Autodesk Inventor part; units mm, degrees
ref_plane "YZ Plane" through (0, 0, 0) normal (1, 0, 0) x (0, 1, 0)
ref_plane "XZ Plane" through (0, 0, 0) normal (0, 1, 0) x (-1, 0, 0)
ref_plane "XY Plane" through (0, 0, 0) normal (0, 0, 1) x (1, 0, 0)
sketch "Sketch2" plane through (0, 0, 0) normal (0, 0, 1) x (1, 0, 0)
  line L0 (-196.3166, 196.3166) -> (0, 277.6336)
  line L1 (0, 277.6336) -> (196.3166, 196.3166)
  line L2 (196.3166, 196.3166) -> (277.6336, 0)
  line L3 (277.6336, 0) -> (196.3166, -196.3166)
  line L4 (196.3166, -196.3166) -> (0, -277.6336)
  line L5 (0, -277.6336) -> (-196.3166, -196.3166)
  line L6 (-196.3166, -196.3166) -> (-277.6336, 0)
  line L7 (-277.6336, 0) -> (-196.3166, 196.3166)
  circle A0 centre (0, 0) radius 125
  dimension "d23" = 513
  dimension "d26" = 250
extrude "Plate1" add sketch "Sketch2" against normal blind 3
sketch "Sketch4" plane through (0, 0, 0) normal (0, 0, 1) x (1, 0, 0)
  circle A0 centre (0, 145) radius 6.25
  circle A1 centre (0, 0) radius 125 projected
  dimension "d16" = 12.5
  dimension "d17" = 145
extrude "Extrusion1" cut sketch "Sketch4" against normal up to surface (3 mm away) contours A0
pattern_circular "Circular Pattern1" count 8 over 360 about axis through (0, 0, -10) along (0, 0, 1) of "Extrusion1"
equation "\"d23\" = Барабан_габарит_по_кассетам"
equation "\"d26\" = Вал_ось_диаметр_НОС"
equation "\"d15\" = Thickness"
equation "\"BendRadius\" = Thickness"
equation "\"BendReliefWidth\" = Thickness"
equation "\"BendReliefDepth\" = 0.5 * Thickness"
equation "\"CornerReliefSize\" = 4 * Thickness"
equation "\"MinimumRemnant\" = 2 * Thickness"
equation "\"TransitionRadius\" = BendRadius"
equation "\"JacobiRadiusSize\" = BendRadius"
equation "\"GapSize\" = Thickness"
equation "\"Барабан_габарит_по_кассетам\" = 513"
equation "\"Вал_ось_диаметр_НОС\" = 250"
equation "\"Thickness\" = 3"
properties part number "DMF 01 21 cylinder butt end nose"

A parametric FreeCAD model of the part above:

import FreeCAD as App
import Part
import Sketcher

V = App.Vector
Q = App.Units.Quantity

doc = App.newDocument("Part")
body = doc.addObject("PartDesign::Body", "Body")

sketch1 = body.newObject("Sketcher::SketchObject", "Sketch")
sketch1.AttachmentSupport = (doc.getObject("XY_Plane"), [""])
sketch1.MapMode = "FlatFace"
sketch1.addGeometry(Part.LineSegment(V(0, 278, 0), V(-196, 196, 0)), False)
sketch1.addGeometry(Part.LineSegment(V(-196, 196, 0), V(-278, 0, 0)), False)
sketch1.addGeometry(Part.LineSegment(V(-278, 0, 0), V(-196, -196, 0)), False)
sketch1.addGeometry(Part.LineSegment(V(-196, -196, 0), V(0, -278, 0)), False)
sketch1.addGeometry(Part.LineSegment(V(0, -278, 0), V(196, -196, 0)), False)
sketch1.addGeometry(Part.LineSegment(V(196, -196, 0), V(278, 0, 0)), False)
sketch1.addGeometry(Part.LineSegment(V(278, 0, 0), V(196, 196, 0)), False)
sketch1.addGeometry(Part.LineSegment(V(196, 196, 0), V(0, 278, 0)), False)
sketch1.addGeometry(Part.Circle(V(0, 0, 0), V(0, 0, 1), 125), False)
sketch1.addConstraint(Sketcher.Constraint("Coincident", 0, 2, 1, 1))
sketch1.addConstraint(Sketcher.Constraint("Coincident", 1, 2, 2, 1))
sketch1.addConstraint(Sketcher.Constraint("Coincident", 2, 2, 3, 1))
sketch1.addConstraint(Sketcher.Constraint("Coincident", 3, 2, 4, 1))
sketch1.addConstraint(Sketcher.Constraint("Coincident", 4, 2, 5, 1))
sketch1.addConstraint(Sketcher.Constraint("Coincident", 5, 2, 6, 1))
sketch1.addConstraint(Sketcher.Constraint("Coincident", 6, 2, 7, 1))
sketch1.addConstraint(Sketcher.Constraint("Coincident", 7, 2, 0, 1))
sketch1.addConstraint(Sketcher.Constraint("Coincident", 8, 3, -1, 1))
sketch1.addConstraint(Sketcher.Constraint("Symmetric", 0, 2, 4, 2, -1, 1))
sketch1.addConstraint(Sketcher.Constraint("Symmetric", 1, 2, 5, 2, -1, 1))
sketch1.addConstraint(Sketcher.Constraint("Symmetric", 2, 2, 6, 2, -1, 1))
sketch1.addConstraint(Sketcher.Constraint("Symmetric", 3, 2, 7, 2, -1, 1))
sketch1.addConstraint(Sketcher.Constraint("Symmetric", 2, 2, 4, 2, -2))
sketch1.addConstraint(Sketcher.Constraint("PointOnObject", 1, 2, -1))
sketch1.addConstraint(Sketcher.Constraint("PointOnObject", 3, 2, -2))
sketch1.addConstraint(Sketcher.Constraint("Perpendicular", 0, 2))
sketch1.addConstraint(Sketcher.Constraint("Equal", 0, 1))
sketch1.addConstraint(Sketcher.Constraint("Diameter", 8, 250.0))
sketch1.addConstraint(Sketcher.Constraint("Angle", 0, Q("-157.5 deg")))
sketch1.addConstraint(Sketcher.Constraint("DistanceX", 1, 2, 0, 2, 81.317))
pad1 = body.newObject("PartDesign::Pad", "Pad")
pad1.Profile = sketch1
pad1.Length = 3
pad1.Reversed = True

sketch2 = body.newObject("Sketcher::SketchObject", "Sketch001")
sketch2.AttachmentSupport = (doc.getObject("XY_Plane"), [""])
sketch2.MapMode = "FlatFace"
sketch2.addGeometry(Part.Circle(V(0, 145, 0), V(0, 0, 1), 6), False)
sketch2.addConstraint(Sketcher.Constraint("PointOnObject", 0, 3, -2))
sketch2.addConstraint(Sketcher.Constraint("Diameter", 0, 12.5))
sketch2.addConstraint(Sketcher.Constraint("DistanceY", -1, 1, 0, 3, 145.0))
pocket1 = body.newObject("PartDesign::Pocket", "Pocket")
pocket1.Profile = sketch2
pocket1.Length = 3
doc.recompute()

polarpattern = body.newObject("PartDesign::PolarPattern", "PolarPattern")
polarpattern.Originals = [pocket1]
polarpattern.Axis = (doc.getObject("Z_Axis"), [""])
polarpattern.Angle = 360
polarpattern.Occurrences = 8
body.Tip = polarpattern

doc.recompute()
